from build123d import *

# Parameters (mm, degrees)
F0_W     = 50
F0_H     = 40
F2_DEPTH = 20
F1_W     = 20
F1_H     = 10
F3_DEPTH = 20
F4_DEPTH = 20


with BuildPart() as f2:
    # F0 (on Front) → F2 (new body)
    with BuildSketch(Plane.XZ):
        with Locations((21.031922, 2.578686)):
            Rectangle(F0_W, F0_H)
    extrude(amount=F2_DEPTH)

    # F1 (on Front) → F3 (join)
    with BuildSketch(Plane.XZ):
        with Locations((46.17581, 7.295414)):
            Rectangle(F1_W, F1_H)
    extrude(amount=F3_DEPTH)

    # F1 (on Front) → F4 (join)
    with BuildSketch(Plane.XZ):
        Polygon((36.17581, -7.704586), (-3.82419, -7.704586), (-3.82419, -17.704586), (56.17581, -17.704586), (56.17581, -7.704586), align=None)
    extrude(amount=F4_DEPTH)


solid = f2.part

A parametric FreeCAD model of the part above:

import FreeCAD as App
import Part
import Sketcher
from FreeCAD import Vector
Q = App.Units.Quantity

doc = App.newDocument("Part")
body = doc.addObject("PartDesign::Body", "Body")

sketch1 = body.newObject("Sketcher::SketchObject", "Sketch")
sketch1.AttachmentSupport = (doc.getObject("XZ_Plane"), [""])
sketch1.MapMode = "FlatFace"
sketch1.addGeometry(Part.LineSegment(Vector(-4, 23, 0), Vector(-4, -17, 0)), False)
sketch1.addGeometry(Part.LineSegment(Vector(-4, -17, 0), Vector(46, -17, 0)), False)
sketch1.addGeometry(Part.LineSegment(Vector(46, -17, 0), Vector(46, 23, 0)), False)
sketch1.addGeometry(Part.LineSegment(Vector(46, 23, 0), Vector(-4, 23, 0)), False)
sketch1.addConstraint(Sketcher.Constraint("Coincident", 0, 2, 1, 1))
sketch1.addConstraint(Sketcher.Constraint("Coincident", 1, 2, 2, 1))
sketch1.addConstraint(Sketcher.Constraint("Coincident", 2, 2, 3, 1))
sketch1.addConstraint(Sketcher.Constraint("Coincident", 3, 2, 0, 1))
sketch1.addConstraint(Sketcher.Constraint("Vertical", 0))
sketch1.addConstraint(Sketcher.Constraint("Horizontal", 1))
sketch1.addConstraint(Sketcher.Constraint("Vertical", 2))
sketch1.addConstraint(Sketcher.Constraint("Horizontal", 3))
sketch1.addConstraint(Sketcher.Constraint("DistanceX", 1, 1, 1, 2, Q("50 mm")))
sketch1.addConstraint(Sketcher.Constraint("DistanceY", 0, 2, 0, 1, Q("40 mm")))
sketch1.addConstraint(Sketcher.Constraint("DistanceX", 0, 2, -1, 1, Q("3.968078 mm")))
sketch1.addConstraint(Sketcher.Constraint("DistanceY", 0, 2, -1, 1, Q("17.421314 mm")))
pad1 = body.newObject("PartDesign::Pad", "Pad")
pad1.Profile = sketch1
pad1.Length = 20

sketch2 = body.newObject("Sketcher::SketchObject", "Sketch001")
sketch2.AttachmentSupport = (doc.getObject("XZ_Plane"), [""])
sketch2.MapMode = "FlatFace"
sketch2.addGeometry(Part.LineSegment(Vector(36, 12, 0), Vector(36, 2, 0)), False)
sketch2.addGeometry(Part.LineSegment(Vector(36, 2, 0), Vector(56, 2, 0)), False)
sketch2.addGeometry(Part.LineSegment(Vector(56, 2, 0), Vector(56, 12, 0)), False)
sketch2.addGeometry(Part.LineSegment(Vector(56, 12, 0), Vector(36, 12, 0)), False)
sketch2.addConstraint(Sketcher.Constraint("Coincident", 0, 2, 1, 1))
sketch2.addConstraint(Sketcher.Constraint("Coincident", 1, 2, 2, 1))
sketch2.addConstraint(Sketcher.Constraint("Coincident", 2, 2, 3, 1))
sketch2.addConstraint(Sketcher.Constraint("Coincident", 3, 2, 0, 1))
sketch2.addConstraint(Sketcher.Constraint("Vertical", 0))
sketch2.addConstraint(Sketcher.Constraint("Horizontal", 1))
sketch2.addConstraint(Sketcher.Constraint("Vertical", 2))
sketch2.addConstraint(Sketcher.Constraint("Horizontal", 3))
sketch2.addConstraint(Sketcher.Constraint("DistanceX", 1, 1, 1, 2, Q("20 mm")))
sketch2.addConstraint(Sketcher.Constraint("DistanceY", 0, 2, 0, 1, Q("10 mm")))
sketch2.addConstraint(Sketcher.Constraint("DistanceX", -1, 1, 0, 2, Q("36.17581 mm")))
sketch2.addConstraint(Sketcher.Constraint("DistanceY", -1, 1, 0, 2, Q("2.295414 mm")))
pad2 = body.newObject("PartDesign::Pad", "Pad001")
pad2.Profile = sketch2
pad2.Length = 20

sketch3 = body.newObject("Sketcher::SketchObject", "Sketch002")
sketch3.AttachmentSupport = (doc.getObject("XZ_Plane"), [""])
sketch3.MapMode = "FlatFace"
sketch3.addGeometry(Part.LineSegment(Vector(-4, -8, 0), Vector(-4, -18, 0)), False)
sketch3.addGeometry(Part.LineSegment(Vector(-4, -18, 0), Vector(56, -18, 0)), False)
sketch3.addGeometry(Part.LineSegment(Vector(56, -18, 0), Vector(56, -8, 0)), False)
sketch3.addGeometry(Part.LineSegment(Vector(56, -8, 0), Vector(-4, -8, 0)), False)
sketch3.addConstraint(Sketcher.Constraint("Coincident", 0, 2, 1, 1))
sketch3.addConstraint(Sketcher.Constraint("Coincident", 1, 2, 2, 1))
sketch3.addConstraint(Sketcher.Constraint("Coincident", 2, 2, 3, 1))
sketch3.addConstraint(Sketcher.Constraint("Coincident", 3, 2, 0, 1))
sketch3.addConstraint(Sketcher.Constraint("Vertical", 0))
sketch3.addConstraint(Sketcher.Constraint("Horizontal", 1))
sketch3.addConstraint(Sketcher.Constraint("Vertical", 2))
sketch3.addConstraint(Sketcher.Constraint("Horizontal", 3))
sketch3.addConstraint(Sketcher.Constraint("DistanceX", 1, 1, 1, 2, Q("60 mm")))
sketch3.addConstraint(Sketcher.Constraint("DistanceY", 0, 2, 0, 1, Q("10 mm")))
sketch3.addConstraint(Sketcher.Constraint("DistanceX", 0, 2, -1, 1, Q("3.82419 mm")))
sketch3.addConstraint(Sketcher.Constraint("DistanceY", 0, 2, -1, 1, Q("17.704586 mm")))
pad3 = body.newObject("PartDesign::Pad", "Pad002")
pad3.Profile = sketch3
pad3.Length = 20

doc.recompute()
